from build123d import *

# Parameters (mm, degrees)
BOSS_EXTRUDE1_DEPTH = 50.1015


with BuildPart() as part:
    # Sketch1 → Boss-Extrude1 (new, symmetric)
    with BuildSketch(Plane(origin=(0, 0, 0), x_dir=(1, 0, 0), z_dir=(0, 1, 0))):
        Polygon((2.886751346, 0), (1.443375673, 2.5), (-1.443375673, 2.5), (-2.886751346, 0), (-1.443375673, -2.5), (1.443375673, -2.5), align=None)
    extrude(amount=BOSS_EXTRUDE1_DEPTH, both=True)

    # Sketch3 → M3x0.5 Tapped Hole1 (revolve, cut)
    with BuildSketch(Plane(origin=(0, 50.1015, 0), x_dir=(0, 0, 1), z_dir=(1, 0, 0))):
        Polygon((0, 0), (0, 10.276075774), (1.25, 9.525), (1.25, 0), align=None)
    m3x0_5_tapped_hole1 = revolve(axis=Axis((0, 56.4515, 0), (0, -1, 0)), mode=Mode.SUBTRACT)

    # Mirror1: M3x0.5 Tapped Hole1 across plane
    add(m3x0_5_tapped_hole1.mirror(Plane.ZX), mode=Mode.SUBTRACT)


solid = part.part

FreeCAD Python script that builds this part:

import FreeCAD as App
import Part
import Sketcher
from FreeCAD import Vector
Q = App.Units.Quantity

doc = App.newDocument("Part")
body = doc.addObject("PartDesign::Body", "Body")

# Sketch on XZ plane
sketch1 = body.newObject("Sketcher::SketchObject", "Sketch")
sketch1.AttachmentSupport = (doc.getObject("XZ_Plane"), [""])
sketch1.MapMode = "FlatFace"
sketch1.addGeometry([
    Part.LineSegment(Vector(2.886751, 0, 0), Vector(1.443376, -2.5, 0)),  # 0
    Part.LineSegment(Vector(1.443376, -2.5, 0), Vector(-1.443376, -2.5, 0)),  # 1
    Part.LineSegment(Vector(-1.443376, -2.5, 0), Vector(-2.886751, 0, 0)),  # 2
    Part.LineSegment(Vector(-2.886751, 0, 0), Vector(-1.443376, 2.5, 0)),  # 3
    Part.LineSegment(Vector(-1.443376, 2.5, 0), Vector(1.443376, 2.5, 0)),  # 4
    Part.LineSegment(Vector(1.443376, 2.5, 0), Vector(2.886751, 0, 0)),  # 5
], False)
sketch1.addConstraint([
    Sketcher.Constraint("Coincident", 0, 2, 1, 1),
    Sketcher.Constraint("Coincident", 1, 2, 2, 1),
    Sketcher.Constraint("Coincident", 2, 2, 3, 1),
    Sketcher.Constraint("Coincident", 3, 2, 4, 1),
    Sketcher.Constraint("Coincident", 4, 2, 5, 1),
    Sketcher.Constraint("Coincident", 5, 2, 0, 1),
    Sketcher.Constraint("Horizontal", 1),
    Sketcher.Constraint("Horizontal", 4),
    Sketcher.Constraint("Symmetric", 0, 2, 3, 2, -1, 1),
    Sketcher.Constraint("Symmetric", 2, 2, 5, 2, -1, 1),
    Sketcher.Constraint("PointOnObject", 2, 2, -1),
    Sketcher.Constraint("Parallel", 2, 5),
    Sketcher.Constraint("Vertical", 1, 2, 3, 2),
    Sketcher.Constraint("Angle", 0, Q("-120 deg")),
    Sketcher.Constraint("DistanceX", 1, 2, 1, 1, Q("2.886751 mm")),
    Sketcher.Constraint("DistanceY", 0, 2, -1, 1, Q("2.5 mm")),
])
pad1 = body.newObject("PartDesign::Pad", "Pad")
pad1.Profile = sketch1
pad1.Length = Q("3.945 in")
pad1.Midplane = True

# Sketch on YZ plane
sketch2 = body.newObject("Sketcher::SketchObject", "Sketch001")
sketch2.AttachmentSupport = (doc.getObject("YZ_Plane"), [""])
sketch2.MapMode = "FlatFace"
sketch2.addGeometry([
    Part.LineSegment(Vector(39.825424, 0, 0), Vector(50.1015, 0, 0)),
    Part.LineSegment(Vector(50.1015, 0, 0), Vector(50.1015, 1.25, 0)),
    Part.LineSegment(Vector(50.1015, 1.25, 0), Vector(40.5765, 1.25, 0)),
    Part.LineSegment(Vector(40.5765, 1.25, 0), Vector(39.825424, 0, 0)),
], False)
sketch2.addConstraint([
    Sketcher.Constraint("Coincident", 0, 2, 1, 1),
    Sketcher.Constraint("Coincident", 1, 2, 2, 1),
    Sketcher.Constraint("Coincident", 2, 2, 3, 1),
    Sketcher.Constraint("Coincident", 3, 2, 0, 1),
    Sketcher.Constraint("Horizontal", 0),
    Sketcher.Constraint("Vertical", 1),
    Sketcher.Constraint("Horizontal", 2),
    Sketcher.Constraint("PointOnObject", 0, 2, -1),
    Sketcher.Constraint("Angle", 3, Q("-121 deg")),
    Sketcher.Constraint("DistanceX", 2, 2, 2, 1, Q("0.375 in")),
    Sketcher.Constraint("DistanceY", 1, 1, 1, 2, Q("1.25 mm")),
    Sketcher.Constraint("DistanceX", -1, 1, 0, 2, Q("1.9725 in")),
])
groove = body.newObject("PartDesign::Groove", "Groove")
groove.Profile = sketch2
groove.ReferenceAxis = (sketch2, ["H_Axis"])
groove.Angle = 360
doc.recompute()

mirrored = body.newObject("PartDesign::Mirrored", "Mirrored")
mirrored.Originals = [groove]
mirrored.MirrorPlane = (doc.getObject("XZ_Plane"), [""])
body.Tip = mirrored

doc.recompute()
